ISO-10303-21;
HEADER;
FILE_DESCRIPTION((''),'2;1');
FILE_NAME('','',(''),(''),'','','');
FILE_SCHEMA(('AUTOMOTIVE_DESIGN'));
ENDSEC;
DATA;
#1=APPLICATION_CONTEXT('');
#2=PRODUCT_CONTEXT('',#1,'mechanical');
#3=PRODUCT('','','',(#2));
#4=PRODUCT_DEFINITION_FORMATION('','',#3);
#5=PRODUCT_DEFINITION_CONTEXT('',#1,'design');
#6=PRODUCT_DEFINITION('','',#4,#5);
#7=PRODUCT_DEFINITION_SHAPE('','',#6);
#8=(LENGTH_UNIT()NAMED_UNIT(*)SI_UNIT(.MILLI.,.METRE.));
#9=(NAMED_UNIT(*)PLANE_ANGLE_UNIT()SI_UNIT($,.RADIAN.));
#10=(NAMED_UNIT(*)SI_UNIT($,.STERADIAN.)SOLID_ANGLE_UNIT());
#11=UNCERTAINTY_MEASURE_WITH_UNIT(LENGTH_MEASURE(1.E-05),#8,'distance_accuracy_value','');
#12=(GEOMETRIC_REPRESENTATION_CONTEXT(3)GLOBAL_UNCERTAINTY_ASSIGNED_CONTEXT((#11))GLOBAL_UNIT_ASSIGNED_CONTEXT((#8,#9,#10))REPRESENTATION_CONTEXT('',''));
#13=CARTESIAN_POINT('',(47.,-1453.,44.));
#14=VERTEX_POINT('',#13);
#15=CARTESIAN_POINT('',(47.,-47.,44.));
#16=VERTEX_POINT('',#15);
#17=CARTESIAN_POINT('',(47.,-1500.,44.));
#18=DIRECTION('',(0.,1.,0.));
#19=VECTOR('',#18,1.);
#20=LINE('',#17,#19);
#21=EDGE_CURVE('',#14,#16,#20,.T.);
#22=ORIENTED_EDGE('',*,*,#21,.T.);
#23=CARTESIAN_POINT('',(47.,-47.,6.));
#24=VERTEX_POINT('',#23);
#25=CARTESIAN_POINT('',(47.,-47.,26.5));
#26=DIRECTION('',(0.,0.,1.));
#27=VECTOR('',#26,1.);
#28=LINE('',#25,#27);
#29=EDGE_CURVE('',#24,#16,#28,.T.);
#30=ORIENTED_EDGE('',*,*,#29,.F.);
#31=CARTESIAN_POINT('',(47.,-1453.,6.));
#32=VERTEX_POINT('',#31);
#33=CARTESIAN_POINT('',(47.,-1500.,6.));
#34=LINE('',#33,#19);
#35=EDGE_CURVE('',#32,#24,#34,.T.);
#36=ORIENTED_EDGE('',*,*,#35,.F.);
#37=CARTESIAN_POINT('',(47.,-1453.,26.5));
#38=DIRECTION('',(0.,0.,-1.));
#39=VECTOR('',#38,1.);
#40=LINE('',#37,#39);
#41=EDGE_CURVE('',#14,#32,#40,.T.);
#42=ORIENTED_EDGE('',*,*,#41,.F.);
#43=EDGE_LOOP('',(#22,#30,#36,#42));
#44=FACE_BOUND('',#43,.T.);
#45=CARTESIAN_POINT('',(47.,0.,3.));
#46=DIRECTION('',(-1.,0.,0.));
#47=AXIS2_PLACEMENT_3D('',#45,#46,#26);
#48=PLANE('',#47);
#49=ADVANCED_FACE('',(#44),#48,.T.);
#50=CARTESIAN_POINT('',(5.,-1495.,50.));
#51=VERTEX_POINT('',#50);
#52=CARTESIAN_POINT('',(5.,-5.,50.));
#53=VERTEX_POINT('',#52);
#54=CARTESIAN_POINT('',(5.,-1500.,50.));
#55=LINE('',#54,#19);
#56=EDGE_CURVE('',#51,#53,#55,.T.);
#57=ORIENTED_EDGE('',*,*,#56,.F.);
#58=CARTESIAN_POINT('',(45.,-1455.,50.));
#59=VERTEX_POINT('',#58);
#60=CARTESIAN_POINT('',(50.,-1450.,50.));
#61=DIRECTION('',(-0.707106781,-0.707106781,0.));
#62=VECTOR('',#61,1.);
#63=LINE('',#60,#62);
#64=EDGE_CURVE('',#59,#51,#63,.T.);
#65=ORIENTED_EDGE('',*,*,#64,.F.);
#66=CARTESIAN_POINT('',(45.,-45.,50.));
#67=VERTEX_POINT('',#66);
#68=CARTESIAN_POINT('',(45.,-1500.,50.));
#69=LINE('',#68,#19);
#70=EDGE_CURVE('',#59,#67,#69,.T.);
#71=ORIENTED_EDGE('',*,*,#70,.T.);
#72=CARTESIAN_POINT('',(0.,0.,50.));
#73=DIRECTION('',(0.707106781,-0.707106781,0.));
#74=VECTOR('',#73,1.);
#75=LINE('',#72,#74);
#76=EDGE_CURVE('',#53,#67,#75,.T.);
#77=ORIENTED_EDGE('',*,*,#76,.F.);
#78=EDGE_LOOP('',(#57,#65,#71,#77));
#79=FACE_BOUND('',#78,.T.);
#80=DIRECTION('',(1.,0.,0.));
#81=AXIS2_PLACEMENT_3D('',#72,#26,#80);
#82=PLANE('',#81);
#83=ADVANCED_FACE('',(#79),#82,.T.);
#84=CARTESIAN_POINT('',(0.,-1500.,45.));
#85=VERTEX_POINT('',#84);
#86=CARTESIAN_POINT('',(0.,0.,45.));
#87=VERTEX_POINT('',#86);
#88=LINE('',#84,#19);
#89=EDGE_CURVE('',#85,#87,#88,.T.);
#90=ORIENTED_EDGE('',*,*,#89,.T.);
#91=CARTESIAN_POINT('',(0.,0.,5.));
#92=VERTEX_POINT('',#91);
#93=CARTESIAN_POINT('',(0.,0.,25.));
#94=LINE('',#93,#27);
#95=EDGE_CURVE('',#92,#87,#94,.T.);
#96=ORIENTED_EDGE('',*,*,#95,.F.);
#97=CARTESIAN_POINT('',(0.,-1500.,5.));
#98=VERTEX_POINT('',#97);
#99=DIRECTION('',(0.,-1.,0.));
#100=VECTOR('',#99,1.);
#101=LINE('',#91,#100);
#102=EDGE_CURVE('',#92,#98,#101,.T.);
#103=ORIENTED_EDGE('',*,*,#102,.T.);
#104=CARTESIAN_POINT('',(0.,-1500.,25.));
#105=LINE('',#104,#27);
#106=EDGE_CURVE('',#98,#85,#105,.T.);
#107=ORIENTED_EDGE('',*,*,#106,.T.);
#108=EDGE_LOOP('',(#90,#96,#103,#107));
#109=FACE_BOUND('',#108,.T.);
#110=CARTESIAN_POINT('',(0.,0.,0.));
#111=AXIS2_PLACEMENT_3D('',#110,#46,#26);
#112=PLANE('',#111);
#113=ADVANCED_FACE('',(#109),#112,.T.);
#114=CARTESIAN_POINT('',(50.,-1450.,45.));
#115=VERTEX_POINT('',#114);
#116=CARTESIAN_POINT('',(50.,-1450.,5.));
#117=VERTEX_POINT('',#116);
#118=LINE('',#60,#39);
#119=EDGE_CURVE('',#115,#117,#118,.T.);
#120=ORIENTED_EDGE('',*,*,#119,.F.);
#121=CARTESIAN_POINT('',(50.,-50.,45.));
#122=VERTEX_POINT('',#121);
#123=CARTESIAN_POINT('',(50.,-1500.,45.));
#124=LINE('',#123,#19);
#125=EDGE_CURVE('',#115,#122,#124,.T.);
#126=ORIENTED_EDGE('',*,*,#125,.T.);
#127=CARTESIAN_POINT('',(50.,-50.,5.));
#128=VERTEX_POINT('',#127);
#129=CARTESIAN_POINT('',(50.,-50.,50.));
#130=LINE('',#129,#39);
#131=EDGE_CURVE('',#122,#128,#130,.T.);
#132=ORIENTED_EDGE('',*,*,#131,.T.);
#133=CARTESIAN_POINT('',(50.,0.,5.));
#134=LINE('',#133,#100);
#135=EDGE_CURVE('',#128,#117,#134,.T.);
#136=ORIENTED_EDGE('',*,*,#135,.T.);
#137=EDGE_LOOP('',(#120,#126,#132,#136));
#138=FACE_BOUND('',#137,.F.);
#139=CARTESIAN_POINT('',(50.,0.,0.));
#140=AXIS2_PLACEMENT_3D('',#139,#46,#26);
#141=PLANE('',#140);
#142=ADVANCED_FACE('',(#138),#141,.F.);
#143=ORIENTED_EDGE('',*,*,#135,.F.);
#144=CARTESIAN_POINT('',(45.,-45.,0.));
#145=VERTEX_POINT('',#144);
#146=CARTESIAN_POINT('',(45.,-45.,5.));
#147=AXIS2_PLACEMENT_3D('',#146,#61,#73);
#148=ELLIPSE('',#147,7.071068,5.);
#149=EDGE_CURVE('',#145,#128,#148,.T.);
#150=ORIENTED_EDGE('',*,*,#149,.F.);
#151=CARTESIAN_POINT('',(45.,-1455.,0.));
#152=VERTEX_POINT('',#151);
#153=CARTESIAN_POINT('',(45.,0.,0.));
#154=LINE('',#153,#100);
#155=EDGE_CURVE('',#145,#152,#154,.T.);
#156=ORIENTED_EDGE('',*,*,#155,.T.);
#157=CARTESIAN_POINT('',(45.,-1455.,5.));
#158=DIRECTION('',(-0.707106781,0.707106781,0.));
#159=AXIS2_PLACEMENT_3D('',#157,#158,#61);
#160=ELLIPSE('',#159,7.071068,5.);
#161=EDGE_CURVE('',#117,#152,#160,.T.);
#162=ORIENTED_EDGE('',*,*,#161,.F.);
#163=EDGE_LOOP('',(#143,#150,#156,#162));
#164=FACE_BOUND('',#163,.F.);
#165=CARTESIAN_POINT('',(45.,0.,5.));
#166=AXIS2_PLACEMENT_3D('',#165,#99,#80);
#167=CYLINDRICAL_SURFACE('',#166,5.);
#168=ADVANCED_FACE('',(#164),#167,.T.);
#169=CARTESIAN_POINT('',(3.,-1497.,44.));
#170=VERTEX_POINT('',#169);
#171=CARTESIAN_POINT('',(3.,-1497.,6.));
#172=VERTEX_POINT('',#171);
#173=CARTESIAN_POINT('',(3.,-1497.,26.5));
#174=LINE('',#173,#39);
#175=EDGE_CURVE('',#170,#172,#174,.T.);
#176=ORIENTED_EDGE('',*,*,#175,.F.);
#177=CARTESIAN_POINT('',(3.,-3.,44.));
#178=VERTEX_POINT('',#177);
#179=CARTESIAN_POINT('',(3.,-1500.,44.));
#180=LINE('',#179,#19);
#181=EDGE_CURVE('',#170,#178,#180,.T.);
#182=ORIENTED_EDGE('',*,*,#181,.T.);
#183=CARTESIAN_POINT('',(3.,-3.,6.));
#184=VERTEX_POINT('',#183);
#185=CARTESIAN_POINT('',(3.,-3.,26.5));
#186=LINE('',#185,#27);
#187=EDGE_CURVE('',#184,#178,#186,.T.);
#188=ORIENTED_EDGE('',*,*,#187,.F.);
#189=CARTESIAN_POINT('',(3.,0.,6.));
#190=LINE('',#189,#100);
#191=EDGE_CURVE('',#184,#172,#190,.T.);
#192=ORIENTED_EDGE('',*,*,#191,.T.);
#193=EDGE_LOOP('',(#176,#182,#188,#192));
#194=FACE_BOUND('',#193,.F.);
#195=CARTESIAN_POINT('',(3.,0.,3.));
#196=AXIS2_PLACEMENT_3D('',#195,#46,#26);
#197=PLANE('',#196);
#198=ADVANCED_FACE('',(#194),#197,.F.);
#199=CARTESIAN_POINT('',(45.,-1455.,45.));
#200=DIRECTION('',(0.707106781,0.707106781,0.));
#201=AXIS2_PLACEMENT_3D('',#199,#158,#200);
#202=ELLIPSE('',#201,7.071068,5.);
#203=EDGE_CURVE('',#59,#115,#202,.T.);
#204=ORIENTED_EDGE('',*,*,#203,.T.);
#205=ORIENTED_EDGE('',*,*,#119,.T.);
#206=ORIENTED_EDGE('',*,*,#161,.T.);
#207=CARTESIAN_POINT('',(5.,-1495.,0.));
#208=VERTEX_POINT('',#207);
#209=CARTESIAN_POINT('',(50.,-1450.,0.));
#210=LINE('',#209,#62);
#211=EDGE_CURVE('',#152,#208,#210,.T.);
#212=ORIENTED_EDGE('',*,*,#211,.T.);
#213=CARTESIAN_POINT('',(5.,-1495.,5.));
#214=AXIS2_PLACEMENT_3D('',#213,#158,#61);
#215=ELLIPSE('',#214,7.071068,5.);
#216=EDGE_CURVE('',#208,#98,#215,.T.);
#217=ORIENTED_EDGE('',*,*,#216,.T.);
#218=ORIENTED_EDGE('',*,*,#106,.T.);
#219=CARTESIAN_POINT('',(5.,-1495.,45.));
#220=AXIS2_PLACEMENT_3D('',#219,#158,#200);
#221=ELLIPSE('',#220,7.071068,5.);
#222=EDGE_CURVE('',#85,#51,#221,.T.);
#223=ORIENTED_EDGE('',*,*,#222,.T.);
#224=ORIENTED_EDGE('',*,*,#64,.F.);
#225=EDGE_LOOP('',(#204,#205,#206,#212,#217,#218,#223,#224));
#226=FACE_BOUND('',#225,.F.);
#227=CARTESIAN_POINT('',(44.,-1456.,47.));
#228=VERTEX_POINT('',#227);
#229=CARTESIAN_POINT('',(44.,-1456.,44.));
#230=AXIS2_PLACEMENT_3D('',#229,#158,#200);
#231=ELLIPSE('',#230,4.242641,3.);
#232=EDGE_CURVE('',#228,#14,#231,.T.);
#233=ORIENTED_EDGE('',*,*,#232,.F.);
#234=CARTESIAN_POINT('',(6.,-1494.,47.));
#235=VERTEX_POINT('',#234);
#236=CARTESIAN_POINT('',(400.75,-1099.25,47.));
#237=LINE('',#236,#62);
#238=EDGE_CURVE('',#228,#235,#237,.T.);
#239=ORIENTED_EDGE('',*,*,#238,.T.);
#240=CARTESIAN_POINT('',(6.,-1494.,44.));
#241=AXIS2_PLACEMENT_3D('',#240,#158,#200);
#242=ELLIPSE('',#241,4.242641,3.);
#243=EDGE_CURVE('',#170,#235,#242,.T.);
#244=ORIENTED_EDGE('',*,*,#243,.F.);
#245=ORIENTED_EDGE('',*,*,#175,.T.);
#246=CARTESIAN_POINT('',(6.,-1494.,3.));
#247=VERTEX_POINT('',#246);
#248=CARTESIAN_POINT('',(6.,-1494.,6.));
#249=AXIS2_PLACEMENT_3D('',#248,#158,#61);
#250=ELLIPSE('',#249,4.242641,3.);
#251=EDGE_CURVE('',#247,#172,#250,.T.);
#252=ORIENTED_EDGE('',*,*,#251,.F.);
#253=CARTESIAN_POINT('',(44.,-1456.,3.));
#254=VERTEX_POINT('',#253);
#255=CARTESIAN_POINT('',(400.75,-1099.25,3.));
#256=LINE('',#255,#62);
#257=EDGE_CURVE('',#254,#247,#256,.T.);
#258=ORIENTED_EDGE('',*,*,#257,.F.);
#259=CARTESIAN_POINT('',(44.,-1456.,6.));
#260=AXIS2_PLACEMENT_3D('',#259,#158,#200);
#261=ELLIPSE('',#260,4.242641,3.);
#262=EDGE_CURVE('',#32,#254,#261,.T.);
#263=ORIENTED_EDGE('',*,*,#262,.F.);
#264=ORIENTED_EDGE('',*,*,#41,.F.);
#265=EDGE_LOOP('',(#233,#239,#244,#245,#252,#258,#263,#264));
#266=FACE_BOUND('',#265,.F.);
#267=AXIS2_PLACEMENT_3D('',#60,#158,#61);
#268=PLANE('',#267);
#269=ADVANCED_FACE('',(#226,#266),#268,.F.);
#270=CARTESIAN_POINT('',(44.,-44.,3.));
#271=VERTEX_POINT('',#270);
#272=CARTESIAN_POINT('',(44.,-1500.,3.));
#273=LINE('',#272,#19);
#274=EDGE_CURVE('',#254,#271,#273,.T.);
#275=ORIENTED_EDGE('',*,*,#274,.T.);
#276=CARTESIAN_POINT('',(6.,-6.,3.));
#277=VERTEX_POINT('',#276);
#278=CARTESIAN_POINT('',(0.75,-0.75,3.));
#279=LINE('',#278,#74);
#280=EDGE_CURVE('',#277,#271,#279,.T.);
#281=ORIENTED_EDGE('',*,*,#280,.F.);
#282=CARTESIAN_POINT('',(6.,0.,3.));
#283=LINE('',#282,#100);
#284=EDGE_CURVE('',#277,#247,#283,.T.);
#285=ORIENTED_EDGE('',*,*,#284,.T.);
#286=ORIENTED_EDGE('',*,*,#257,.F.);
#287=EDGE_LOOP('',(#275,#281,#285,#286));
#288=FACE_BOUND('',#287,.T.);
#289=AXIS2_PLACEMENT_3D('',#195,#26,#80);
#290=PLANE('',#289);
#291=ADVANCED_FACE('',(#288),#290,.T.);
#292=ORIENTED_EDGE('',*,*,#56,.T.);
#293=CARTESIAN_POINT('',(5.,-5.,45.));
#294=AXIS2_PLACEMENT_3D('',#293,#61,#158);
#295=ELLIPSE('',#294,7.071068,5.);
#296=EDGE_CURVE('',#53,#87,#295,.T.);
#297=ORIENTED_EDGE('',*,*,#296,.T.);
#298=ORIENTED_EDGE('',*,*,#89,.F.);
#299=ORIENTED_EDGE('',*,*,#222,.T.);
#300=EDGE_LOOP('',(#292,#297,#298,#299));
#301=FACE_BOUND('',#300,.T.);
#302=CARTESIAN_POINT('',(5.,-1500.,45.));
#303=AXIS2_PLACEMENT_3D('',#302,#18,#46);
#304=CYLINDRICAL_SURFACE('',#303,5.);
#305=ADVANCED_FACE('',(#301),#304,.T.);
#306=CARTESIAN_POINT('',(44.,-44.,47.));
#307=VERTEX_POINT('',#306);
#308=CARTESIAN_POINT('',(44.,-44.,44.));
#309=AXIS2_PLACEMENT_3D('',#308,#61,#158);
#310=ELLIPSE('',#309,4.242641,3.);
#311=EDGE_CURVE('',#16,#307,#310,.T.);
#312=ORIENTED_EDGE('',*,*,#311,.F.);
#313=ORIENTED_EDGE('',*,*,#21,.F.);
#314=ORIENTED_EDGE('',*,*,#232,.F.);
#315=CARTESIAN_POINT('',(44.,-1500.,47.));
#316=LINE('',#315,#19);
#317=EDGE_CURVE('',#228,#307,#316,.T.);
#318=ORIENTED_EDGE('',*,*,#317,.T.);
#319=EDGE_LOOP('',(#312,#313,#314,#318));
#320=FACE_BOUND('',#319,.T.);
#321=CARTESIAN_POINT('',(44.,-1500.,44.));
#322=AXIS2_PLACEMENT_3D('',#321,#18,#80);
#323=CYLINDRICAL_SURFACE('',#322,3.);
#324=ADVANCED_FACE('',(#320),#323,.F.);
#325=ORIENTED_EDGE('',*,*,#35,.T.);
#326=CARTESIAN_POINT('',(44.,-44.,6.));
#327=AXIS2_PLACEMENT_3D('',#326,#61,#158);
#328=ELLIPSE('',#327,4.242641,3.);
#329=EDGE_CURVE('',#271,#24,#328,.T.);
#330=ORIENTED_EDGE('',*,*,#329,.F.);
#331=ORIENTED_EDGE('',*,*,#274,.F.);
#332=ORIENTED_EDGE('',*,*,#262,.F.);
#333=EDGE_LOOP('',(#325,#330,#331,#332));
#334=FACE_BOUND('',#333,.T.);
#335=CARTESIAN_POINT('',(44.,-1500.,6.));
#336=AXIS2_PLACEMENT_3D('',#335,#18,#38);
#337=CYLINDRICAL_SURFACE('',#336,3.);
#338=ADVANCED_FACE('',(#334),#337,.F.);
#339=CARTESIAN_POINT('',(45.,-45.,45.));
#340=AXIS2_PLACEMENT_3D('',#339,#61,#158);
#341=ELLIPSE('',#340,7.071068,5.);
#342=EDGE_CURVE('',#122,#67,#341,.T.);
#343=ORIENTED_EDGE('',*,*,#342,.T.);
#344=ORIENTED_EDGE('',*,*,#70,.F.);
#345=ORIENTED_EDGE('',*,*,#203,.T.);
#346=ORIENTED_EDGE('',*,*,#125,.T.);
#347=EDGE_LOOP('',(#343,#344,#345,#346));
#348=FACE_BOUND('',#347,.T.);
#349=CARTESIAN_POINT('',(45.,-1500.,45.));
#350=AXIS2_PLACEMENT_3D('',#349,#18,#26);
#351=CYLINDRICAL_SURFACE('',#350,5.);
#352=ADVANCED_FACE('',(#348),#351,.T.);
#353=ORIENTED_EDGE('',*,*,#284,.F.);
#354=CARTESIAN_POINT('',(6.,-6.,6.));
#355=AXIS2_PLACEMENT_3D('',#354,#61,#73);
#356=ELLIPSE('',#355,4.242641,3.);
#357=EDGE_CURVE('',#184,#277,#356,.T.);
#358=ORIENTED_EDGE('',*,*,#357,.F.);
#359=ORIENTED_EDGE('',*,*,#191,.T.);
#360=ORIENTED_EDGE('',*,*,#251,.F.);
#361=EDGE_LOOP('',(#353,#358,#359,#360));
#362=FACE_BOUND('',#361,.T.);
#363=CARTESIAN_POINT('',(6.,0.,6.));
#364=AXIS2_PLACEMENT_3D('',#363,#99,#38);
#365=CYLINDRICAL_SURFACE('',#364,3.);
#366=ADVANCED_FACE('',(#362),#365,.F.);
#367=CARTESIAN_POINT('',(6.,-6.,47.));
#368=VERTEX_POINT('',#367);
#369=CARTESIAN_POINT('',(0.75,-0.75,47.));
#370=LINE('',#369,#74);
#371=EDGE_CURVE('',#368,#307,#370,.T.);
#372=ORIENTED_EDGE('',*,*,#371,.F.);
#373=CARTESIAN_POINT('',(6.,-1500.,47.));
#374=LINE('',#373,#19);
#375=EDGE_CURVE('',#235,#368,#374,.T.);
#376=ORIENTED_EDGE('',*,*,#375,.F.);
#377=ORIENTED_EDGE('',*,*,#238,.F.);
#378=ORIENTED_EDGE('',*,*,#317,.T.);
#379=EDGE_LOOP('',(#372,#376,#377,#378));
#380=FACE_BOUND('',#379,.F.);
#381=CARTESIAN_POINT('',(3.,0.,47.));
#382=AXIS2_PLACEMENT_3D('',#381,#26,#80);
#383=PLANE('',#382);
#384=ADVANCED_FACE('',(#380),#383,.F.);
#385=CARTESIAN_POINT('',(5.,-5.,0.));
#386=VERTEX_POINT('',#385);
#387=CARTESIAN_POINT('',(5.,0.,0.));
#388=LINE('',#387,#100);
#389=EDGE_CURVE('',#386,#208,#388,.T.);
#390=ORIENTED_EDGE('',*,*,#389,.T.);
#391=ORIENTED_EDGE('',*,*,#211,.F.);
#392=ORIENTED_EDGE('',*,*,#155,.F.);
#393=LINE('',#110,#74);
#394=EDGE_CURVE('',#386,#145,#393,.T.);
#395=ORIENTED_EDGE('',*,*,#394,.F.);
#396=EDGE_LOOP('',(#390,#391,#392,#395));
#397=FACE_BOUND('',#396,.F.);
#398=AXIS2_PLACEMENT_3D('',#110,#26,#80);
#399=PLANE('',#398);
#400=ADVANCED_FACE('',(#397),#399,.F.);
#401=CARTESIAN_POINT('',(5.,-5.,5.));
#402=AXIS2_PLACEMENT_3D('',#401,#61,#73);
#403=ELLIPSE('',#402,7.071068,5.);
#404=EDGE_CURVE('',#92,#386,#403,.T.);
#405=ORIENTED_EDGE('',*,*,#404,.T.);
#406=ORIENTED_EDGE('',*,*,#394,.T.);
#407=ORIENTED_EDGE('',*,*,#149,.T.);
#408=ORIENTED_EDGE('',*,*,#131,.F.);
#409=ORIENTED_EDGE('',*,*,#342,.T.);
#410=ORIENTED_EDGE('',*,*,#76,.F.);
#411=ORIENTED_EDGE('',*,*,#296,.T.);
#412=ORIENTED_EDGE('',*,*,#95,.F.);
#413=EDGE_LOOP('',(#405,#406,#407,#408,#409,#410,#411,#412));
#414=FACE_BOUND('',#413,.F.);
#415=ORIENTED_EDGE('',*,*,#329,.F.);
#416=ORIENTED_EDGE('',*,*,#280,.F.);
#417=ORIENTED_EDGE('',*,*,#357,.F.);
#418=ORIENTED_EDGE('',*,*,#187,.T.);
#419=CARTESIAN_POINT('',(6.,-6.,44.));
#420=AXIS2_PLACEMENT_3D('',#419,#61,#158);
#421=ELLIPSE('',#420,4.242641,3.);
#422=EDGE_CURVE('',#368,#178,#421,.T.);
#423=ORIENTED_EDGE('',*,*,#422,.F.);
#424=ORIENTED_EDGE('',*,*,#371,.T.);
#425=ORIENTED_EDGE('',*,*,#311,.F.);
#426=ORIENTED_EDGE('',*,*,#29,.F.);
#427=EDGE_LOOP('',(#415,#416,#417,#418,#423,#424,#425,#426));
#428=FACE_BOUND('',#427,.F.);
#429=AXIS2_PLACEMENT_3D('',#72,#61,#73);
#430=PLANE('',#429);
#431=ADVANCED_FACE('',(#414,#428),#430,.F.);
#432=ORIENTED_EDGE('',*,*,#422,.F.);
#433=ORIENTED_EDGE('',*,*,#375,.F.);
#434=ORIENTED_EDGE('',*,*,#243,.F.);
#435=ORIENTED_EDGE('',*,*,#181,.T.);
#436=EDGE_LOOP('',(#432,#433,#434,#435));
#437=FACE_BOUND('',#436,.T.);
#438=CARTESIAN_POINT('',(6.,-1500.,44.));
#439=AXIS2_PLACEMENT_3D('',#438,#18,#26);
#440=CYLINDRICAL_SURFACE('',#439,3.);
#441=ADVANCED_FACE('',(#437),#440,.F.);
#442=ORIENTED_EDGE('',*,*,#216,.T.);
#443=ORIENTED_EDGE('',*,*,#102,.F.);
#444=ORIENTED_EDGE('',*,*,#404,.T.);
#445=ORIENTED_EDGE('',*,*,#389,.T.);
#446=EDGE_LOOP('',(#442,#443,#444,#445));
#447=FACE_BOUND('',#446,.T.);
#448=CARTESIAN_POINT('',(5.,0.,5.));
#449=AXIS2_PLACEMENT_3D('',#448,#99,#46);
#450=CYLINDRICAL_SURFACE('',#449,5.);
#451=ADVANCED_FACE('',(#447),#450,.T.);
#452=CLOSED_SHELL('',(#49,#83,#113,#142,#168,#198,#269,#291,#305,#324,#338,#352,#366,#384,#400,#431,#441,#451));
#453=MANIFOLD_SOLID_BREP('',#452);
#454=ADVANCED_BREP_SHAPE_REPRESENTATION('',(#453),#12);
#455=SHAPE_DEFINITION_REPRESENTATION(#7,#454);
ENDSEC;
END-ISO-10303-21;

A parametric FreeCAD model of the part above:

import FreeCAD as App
import Part
import Sketcher
from FreeCAD import Vector


def edges_at(feature, points):
    """Names of the edges that pass closest to the given points."""
    edges = feature.Shape.Edges
    near = lambda p: min(range(len(edges)), key=lambda i: edges[i].distToShape(Part.Vertex(*p))[0])
    return sorted({f"Edge{near(p) + 1}" for p in points})


def add_polygon(sketch, points):
    """Adds a closed chain of lines whose ends are joined by coincident constraints."""
    first, n = sketch.GeometryCount, len(points)
    for a, b in zip(points, points[1:] + points[:1]):
        sketch.addGeometry(Part.LineSegment(App.Vector(*a, 0), App.Vector(*b, 0)), False)
    for i in range(n):
        sketch.addConstraint(Sketcher.Constraint("Coincident", first + i, 2, first + (i + 1) % n, 1))

doc = App.newDocument("Part")
body = doc.addObject("PartDesign::Body", "Body")

sketch1 = body.newObject("Sketcher::SketchObject", "Sketch")
sketch1.AttachmentSupport = (doc.getObject("XZ_Plane"), [""])
sketch1.MapMode = "FlatFace"
add_polygon(sketch1, [(0, 50), (0, 0), (50, 0), (50, 50)])
add_polygon(sketch1, [(47, 3), (3, 3), (3, 47), (47, 47)])
sketch1.addConstraint(Sketcher.Constraint("Vertical", 0))
sketch1.addConstraint(Sketcher.Constraint("Horizontal", 1))
sketch1.addConstraint(Sketcher.Constraint("Vertical", 2))
sketch1.addConstraint(Sketcher.Constraint("Horizontal", 3))
sketch1.addConstraint(Sketcher.Constraint("Horizontal", 4))
sketch1.addConstraint(Sketcher.Constraint("Vertical", 5))
sketch1.addConstraint(Sketcher.Constraint("Horizontal", 6))
sketch1.addConstraint(Sketcher.Constraint("Vertical", 7))
sketch1.addConstraint(Sketcher.Constraint("Coincident", 0, 2, -1, 1))
sketch1.addConstraint(Sketcher.Constraint("Equal", 3, 0))
sketch1.addConstraint(Sketcher.Constraint("Equal", 6, 5))
sketch1.addConstraint(Sketcher.Constraint("DistanceX", 1, 1, 1, 2, 50.0))
sketch1.addConstraint(Sketcher.Constraint("DistanceX", 4, 2, 4, 1, 44.0))
sketch1.addConstraint(Sketcher.Constraint("DistanceX", -1, 1, 4, 2, 3.0))
sketch1.addConstraint(Sketcher.Constraint("DistanceY", -1, 1, 4, 2, 3.0))
pad1 = body.newObject("PartDesign::Pad", "Pad")
pad1.Profile = sketch1
pad1.Length = 1500

sketch2 = body.newObject("Sketcher::SketchObject", "Sketch001")
sketch2.AttachmentSupport = (doc.getObject("XZ_Plane"), [""])
sketch2.MapMode = "FlatFace"
add_polygon(sketch2, [(0, 50), (0, 0), (50, 0), (50, 50)])
add_polygon(sketch2, [(47, 3), (3, 3), (3, 47), (47, 47)])
sketch2.addConstraint(Sketcher.Constraint("Vertical", 0))
sketch2.addConstraint(Sketcher.Constraint("Horizontal", 1))
sketch2.addConstraint(Sketcher.Constraint("Vertical", 2))
sketch2.addConstraint(Sketcher.Constraint("Horizontal", 3))
sketch2.addConstraint(Sketcher.Constraint("Horizontal", 4))
sketch2.addConstraint(Sketcher.Constraint("Vertical", 5))
sketch2.addConstraint(Sketcher.Constraint("Horizontal", 6))
sketch2.addConstraint(Sketcher.Constraint("Vertical", 7))
sketch2.addConstraint(Sketcher.Constraint("Coincident", 0, 2, -1, 1))
sketch2.addConstraint(Sketcher.Constraint("Equal", 3, 0))
sketch2.addConstraint(Sketcher.Constraint("Equal", 6, 5))
sketch2.addConstraint(Sketcher.Constraint("DistanceX", 1, 1, 1, 2, 50.0))
sketch2.addConstraint(Sketcher.Constraint("DistanceX", 4, 2, 4, 1, 44.0))
sketch2.addConstraint(Sketcher.Constraint("DistanceX", -1, 1, 4, 2, 3.0))
sketch2.addConstraint(Sketcher.Constraint("DistanceY", -1, 1, 4, 2, 3.0))
pad2 = body.newObject("PartDesign::Pad", "Pad001")
pad2.Profile = sketch2
pad2.Length = 100
doc.recompute()

fillet = body.newObject("PartDesign::Fillet", "Fillet")
fillet.Base = (pad2, edges_at(pad2, [
    (50, -750, 50),
    (50, -750, 0),
    (0, -750, 0),
    (0, -750, 50),
]))
fillet.Radius = 5
doc.recompute()

fillet2 = body.newObject("PartDesign::Fillet", "Fillet001")
fillet2.Base = (fillet, edges_at(fillet, [
    (47, -750, 47),
    (3, -750, 3),
    (3, -750, 47),
    (47, -750, 3),
]))
fillet2.Radius = 3

sketch3 = body.newObject("Sketcher::SketchObject", "Sketch002")
sketch3.AttachmentSupport = (doc.getObject("XY_Plane"), [""])
sketch3.MapMode = "FlatFace"
sketch3.AttachmentOffset = App.Placement(Vector(0, 0, 50), App.Rotation())
add_polygon(sketch3, [(50, 0), (0, 0), (50, -50)])
add_polygon(sketch3, [(50, -1450), (0, -1500), (50, -1500)])
sketch3.addConstraint(Sketcher.Constraint("Horizontal", 0))
sketch3.addConstraint(Sketcher.Constraint("Vertical", 2))
sketch3.addConstraint(Sketcher.Constraint("Horizontal", 4))
sketch3.addConstraint(Sketcher.Constraint("Vertical", 5))
sketch3.addConstraint(Sketcher.Constraint("Coincident", 0, 2, -1, 1))
sketch3.addConstraint(Sketcher.Constraint("PointOnObject", 3, 2, -2))
sketch3.addConstraint(Sketcher.Constraint("Perpendicular", 1, 3))
sketch3.addConstraint(Sketcher.Constraint("Vertical", 2, 2, 4, 2))
sketch3.addConstraint(Sketcher.Constraint("Equal", 4, 2))
sketch3.addConstraint(Sketcher.Constraint("DistanceX", 0, 2, 0, 1, 50.0))
sketch3.addConstraint(Sketcher.Constraint("DistanceY", 3, 2, -1, 1, 1500.0))
pocket1 = body.newObject("PartDesign::Pocket", "Pocket")
pocket1.Profile = sketch3
pocket1.Length = 50

doc.recompute()
